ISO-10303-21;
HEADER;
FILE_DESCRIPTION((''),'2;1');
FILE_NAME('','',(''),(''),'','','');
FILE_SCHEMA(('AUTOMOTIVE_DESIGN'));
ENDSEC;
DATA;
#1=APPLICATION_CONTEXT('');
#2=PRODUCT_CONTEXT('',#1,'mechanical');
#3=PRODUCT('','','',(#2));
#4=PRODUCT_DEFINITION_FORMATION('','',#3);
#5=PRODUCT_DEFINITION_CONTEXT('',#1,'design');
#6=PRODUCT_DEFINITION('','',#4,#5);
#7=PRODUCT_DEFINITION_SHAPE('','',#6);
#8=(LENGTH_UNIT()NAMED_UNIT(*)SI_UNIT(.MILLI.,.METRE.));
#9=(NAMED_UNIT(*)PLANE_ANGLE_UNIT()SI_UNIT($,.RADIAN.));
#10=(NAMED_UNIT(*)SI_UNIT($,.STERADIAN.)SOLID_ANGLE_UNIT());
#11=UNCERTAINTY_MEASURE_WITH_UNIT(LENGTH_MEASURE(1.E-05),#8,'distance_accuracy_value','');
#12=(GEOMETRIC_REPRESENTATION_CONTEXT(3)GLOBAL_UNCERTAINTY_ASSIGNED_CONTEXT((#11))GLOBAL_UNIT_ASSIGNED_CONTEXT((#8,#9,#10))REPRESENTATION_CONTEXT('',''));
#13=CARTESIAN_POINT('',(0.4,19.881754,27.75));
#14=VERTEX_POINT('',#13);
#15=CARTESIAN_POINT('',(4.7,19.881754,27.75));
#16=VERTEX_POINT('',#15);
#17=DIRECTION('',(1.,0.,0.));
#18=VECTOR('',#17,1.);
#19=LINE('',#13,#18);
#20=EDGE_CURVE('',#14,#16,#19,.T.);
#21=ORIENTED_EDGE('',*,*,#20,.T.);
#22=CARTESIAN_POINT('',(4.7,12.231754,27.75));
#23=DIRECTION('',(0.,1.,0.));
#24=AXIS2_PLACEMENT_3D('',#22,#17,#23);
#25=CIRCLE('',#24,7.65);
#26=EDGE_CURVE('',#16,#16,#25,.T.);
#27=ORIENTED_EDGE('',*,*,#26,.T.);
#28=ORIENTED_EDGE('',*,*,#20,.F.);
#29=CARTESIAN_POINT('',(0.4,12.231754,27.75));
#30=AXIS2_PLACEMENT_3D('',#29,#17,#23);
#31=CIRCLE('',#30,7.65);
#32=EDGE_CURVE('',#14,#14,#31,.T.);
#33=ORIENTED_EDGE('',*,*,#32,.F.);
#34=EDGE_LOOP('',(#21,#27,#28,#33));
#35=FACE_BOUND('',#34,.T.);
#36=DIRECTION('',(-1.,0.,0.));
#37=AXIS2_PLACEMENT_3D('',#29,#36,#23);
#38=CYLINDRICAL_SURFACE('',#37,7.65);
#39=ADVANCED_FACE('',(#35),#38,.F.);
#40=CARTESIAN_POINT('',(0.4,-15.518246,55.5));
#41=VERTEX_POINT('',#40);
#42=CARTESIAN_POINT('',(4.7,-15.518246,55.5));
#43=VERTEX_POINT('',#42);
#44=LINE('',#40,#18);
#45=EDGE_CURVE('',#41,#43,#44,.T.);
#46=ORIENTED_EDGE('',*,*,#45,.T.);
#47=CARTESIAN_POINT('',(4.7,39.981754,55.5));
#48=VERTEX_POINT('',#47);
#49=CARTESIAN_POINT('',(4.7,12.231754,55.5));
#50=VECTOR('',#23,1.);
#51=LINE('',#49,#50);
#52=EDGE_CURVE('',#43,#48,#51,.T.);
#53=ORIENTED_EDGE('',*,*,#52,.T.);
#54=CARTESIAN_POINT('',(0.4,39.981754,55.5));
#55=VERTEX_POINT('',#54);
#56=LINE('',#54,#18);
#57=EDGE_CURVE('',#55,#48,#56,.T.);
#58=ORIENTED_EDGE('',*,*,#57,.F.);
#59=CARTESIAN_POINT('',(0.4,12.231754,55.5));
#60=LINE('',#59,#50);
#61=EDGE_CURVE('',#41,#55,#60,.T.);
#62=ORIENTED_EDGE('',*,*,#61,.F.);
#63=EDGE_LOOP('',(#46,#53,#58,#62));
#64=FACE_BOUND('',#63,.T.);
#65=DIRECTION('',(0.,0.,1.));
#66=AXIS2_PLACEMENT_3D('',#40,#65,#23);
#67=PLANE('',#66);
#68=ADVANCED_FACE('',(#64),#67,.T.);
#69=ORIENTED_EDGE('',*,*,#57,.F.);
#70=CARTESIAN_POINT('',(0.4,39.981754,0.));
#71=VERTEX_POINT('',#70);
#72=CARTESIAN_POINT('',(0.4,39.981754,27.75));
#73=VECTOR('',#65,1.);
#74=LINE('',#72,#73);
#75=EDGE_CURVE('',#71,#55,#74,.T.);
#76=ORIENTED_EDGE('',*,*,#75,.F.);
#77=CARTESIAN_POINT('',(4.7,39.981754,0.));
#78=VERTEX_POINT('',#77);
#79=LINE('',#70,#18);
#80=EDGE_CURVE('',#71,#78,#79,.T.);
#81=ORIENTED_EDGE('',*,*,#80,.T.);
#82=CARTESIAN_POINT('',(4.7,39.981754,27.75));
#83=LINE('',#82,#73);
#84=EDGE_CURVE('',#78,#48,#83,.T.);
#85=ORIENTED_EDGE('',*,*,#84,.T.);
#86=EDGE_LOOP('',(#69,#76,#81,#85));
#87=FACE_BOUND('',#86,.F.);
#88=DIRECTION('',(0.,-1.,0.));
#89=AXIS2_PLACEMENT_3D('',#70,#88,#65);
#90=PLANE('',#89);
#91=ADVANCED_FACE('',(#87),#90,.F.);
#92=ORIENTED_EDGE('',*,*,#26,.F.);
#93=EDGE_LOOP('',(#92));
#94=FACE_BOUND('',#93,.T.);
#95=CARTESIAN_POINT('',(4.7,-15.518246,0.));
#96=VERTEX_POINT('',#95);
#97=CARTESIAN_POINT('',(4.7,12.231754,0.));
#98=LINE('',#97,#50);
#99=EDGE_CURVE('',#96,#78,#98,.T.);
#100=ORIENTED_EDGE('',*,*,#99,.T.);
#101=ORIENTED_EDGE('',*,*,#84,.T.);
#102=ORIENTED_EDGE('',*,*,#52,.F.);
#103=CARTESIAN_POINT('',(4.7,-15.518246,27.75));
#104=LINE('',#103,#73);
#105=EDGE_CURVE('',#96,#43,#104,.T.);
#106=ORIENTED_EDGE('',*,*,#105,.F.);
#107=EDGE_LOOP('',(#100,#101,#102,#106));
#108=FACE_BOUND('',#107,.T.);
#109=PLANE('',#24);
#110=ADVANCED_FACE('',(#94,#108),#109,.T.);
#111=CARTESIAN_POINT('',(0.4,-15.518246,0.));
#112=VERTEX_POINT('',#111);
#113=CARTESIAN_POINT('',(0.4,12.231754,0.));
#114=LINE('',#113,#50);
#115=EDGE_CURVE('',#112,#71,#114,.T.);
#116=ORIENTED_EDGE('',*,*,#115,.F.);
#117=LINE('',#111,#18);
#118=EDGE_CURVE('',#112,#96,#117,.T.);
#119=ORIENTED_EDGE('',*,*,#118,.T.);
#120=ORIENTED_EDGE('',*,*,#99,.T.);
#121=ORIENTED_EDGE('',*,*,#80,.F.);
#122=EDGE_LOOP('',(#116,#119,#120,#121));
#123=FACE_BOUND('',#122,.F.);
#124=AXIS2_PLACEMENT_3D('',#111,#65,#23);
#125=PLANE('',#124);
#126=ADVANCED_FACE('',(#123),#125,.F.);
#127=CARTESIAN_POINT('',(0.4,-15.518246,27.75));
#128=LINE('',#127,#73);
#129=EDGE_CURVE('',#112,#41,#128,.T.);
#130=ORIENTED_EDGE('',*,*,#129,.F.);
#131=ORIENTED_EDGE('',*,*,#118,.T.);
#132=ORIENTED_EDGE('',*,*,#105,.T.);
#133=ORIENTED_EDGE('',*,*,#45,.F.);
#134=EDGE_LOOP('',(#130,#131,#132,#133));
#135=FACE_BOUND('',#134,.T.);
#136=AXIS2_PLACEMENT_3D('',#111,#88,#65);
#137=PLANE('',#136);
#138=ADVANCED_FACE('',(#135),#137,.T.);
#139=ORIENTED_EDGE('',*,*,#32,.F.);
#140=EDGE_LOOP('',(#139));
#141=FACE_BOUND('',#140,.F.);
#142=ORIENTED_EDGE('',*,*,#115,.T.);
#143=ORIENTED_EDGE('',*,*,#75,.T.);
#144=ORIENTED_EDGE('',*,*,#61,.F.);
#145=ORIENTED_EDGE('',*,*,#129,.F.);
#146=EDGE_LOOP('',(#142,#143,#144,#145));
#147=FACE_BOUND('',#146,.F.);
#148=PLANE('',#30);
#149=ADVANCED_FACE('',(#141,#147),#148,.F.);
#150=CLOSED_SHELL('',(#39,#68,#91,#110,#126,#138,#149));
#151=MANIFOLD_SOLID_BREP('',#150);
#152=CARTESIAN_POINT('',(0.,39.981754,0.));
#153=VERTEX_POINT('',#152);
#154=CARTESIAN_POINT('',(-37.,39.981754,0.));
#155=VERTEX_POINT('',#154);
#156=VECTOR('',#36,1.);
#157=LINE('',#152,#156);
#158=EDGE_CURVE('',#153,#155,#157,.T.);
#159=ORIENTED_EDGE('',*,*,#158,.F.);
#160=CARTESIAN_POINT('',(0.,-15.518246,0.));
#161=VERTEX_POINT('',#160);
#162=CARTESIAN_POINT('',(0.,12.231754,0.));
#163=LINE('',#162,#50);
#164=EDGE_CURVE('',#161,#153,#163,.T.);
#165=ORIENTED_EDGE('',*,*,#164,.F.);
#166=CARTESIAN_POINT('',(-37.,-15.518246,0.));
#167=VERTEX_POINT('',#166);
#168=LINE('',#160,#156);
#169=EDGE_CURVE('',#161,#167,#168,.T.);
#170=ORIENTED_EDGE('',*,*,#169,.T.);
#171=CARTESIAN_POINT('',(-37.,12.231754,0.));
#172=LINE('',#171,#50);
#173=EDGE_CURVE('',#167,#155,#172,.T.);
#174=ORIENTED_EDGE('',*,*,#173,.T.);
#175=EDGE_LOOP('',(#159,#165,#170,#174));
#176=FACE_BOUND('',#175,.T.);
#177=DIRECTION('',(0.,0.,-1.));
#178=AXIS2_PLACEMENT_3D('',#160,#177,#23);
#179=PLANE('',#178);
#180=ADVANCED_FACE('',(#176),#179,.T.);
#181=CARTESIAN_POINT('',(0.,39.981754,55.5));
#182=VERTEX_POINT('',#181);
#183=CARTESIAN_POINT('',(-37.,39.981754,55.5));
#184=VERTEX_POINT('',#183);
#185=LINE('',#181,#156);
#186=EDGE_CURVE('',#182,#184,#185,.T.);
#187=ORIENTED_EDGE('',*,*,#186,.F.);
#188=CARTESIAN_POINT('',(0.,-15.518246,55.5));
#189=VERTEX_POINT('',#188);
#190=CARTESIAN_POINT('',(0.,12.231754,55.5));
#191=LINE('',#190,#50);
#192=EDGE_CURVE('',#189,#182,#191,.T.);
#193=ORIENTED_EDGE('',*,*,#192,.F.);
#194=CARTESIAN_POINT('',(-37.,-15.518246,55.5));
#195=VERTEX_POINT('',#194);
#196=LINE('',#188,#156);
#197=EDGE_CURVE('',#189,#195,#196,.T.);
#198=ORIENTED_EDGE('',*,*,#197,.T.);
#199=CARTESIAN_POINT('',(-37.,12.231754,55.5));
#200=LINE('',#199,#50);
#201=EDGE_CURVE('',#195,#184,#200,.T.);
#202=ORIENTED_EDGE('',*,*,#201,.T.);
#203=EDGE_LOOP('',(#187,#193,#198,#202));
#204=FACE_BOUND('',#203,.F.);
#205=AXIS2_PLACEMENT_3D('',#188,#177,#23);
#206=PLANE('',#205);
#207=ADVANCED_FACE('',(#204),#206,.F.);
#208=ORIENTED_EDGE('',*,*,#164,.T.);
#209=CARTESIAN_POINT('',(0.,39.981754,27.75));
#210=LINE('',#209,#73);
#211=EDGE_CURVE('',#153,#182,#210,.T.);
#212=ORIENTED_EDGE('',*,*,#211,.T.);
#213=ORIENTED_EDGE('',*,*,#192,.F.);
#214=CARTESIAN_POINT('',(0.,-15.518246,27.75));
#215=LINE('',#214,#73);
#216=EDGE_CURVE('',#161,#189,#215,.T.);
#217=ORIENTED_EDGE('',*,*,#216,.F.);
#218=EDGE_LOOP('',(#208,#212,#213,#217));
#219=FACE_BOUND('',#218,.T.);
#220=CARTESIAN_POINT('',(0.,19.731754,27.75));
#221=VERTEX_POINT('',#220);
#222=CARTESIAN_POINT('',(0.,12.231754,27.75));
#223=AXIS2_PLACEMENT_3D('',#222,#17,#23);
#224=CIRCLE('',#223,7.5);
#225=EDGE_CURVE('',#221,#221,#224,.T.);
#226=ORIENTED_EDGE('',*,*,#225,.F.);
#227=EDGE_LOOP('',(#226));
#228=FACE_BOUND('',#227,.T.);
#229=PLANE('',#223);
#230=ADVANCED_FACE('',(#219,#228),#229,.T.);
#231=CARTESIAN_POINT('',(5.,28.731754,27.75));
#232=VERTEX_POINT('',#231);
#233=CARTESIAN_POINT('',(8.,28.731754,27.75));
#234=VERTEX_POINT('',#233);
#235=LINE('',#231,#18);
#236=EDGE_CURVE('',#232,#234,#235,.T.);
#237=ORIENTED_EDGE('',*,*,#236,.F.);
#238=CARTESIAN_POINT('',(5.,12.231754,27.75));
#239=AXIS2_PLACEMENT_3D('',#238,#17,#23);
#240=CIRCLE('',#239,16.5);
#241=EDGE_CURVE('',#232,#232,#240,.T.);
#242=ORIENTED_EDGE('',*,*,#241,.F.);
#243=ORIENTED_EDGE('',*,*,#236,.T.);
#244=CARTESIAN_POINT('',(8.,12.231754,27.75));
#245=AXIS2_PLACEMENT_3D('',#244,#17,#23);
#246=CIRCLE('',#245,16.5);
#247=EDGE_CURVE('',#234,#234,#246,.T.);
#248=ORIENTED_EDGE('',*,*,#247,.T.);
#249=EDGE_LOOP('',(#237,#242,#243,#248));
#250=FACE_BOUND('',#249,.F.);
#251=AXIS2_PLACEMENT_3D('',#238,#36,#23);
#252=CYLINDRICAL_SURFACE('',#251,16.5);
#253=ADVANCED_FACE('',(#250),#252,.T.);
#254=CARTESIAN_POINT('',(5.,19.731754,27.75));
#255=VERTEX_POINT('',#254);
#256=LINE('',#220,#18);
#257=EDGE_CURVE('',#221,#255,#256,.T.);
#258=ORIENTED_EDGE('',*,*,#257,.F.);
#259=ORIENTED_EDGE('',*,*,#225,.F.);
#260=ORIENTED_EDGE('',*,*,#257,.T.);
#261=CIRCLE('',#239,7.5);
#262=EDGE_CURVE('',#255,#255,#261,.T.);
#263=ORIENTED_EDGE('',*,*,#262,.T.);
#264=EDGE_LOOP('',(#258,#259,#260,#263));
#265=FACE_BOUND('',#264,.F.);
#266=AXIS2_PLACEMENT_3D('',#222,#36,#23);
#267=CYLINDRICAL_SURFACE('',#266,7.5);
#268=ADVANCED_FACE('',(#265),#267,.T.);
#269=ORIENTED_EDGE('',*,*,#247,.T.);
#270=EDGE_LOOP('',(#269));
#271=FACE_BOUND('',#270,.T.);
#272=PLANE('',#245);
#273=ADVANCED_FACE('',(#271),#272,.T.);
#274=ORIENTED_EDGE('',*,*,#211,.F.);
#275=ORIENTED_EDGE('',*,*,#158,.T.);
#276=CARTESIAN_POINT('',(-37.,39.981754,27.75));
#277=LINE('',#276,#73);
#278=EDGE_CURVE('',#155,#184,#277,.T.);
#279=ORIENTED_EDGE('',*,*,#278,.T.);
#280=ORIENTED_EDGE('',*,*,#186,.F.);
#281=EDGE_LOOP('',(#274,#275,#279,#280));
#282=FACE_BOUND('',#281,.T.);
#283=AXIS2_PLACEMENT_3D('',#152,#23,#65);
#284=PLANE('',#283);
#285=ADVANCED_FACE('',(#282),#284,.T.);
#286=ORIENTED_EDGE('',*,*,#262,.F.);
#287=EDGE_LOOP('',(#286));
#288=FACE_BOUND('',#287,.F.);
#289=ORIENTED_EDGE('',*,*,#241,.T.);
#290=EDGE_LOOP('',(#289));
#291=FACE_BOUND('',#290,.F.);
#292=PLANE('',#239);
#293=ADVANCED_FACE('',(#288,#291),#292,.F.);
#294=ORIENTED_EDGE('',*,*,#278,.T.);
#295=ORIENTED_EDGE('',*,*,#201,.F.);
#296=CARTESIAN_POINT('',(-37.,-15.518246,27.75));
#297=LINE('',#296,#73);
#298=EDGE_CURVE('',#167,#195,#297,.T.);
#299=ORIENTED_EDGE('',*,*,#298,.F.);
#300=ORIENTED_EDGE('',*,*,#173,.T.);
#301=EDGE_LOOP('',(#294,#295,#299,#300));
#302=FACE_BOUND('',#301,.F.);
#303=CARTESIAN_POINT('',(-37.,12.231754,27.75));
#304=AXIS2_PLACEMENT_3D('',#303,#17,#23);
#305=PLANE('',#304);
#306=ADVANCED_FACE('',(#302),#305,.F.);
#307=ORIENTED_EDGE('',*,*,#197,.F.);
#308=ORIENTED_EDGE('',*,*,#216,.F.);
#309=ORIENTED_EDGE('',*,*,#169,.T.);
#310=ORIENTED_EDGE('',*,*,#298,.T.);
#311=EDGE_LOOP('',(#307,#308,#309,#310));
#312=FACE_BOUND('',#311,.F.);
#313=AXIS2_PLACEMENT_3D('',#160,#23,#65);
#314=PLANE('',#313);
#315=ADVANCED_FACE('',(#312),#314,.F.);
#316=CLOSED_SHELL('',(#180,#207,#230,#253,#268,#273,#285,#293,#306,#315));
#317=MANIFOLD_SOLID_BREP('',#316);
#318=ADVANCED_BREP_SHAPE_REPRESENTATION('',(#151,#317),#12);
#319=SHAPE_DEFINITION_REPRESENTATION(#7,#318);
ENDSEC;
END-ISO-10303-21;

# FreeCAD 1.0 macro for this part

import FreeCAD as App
import Part
import Sketcher

V = App.Vector
Q = App.Units.Quantity


def add_polygon(sketch, points):
    """Adds a closed chain of lines whose ends are joined by coincident constraints."""
    first, n = sketch.GeometryCount, len(points)
    for a, b in zip(points, points[1:] + points[:1]):
        sketch.addGeometry(Part.LineSegment(App.Vector(*a, 0), App.Vector(*b, 0)), False)
    for i in range(n):
        sketch.addConstraint(Sketcher.Constraint("Coincident", first + i, 2, first + (i + 1) % n, 1))

doc = App.newDocument("Part")
body = doc.addObject("PartDesign::Body", "Body")

# Sketch on YZ plane
sketch1 = body.newObject("Sketcher::SketchObject", "Sketch")
sketch1.AttachmentSupport = (doc.getObject("YZ_Plane"), [""])
sketch1.MapMode = "FlatFace"
add_polygon(sketch1, [(-15.518246, 55.5), (-15.518246, 0), (39.981754, 0), (39.981754, 55.5)])  # lines 0-3
sketch1.addConstraint([
    Sketcher.Constraint("Vertical", 0),
    Sketcher.Constraint("Horizontal", 1),
    Sketcher.Constraint("Vertical", 2),
    Sketcher.Constraint("Horizontal", 3),
    Sketcher.Constraint("PointOnObject", 0, 2, -1),
    Sketcher.Constraint("Equal", 3, 0),
    Sketcher.Constraint("DistanceX", 1, 1, 1, 2, Q("55.5 mm")),
    Sketcher.Constraint("DistanceX", 0, 2, -1, 1, Q("15.518246 mm")),
])
pad1 = body.newObject("PartDesign::Pad", "Pad")
pad1.Profile = sketch1
pad1.Length = 37
pad1.Reversed = True

# Sketch on YZ plane
sketch2 = body.newObject("Sketcher::SketchObject", "Sketch001")
sketch2.AttachmentSupport = (doc.getObject("YZ_Plane"), [""])
sketch2.MapMode = "FlatFace"
sketch2.addGeometry(Part.Circle(V(12.231754, 27.75, 0), V(0, 0, 1), 7.5), False)
sketch2.addConstraint([
    Sketcher.Constraint("Diameter", 0, Q("15 mm")),
    Sketcher.Constraint("DistanceY", -1, 1, 0, 3, Q("27.75 mm")),
    Sketcher.Constraint("DistanceX", -1, 1, 0, 3, Q("12.231754 mm")),
])
pad2 = body.newObject("PartDesign::Pad", "Pad001")
pad2.Profile = sketch2
pad2.Length = 5

# Sketch on YZ plane
sketch3 = body.newObject("Sketcher::SketchObject", "Sketch002")
sketch3.AttachmentSupport = (doc.getObject("YZ_Plane"), [""])
sketch3.MapMode = "FlatFace"
sketch3.AttachmentOffset = App.Placement(V(0, 0, 5), App.Rotation())
sketch3.addGeometry(Part.Circle(V(12.231754, 27.75, 0), V(0, 0, 1), 16.5), False)
sketch3.addConstraint([
    Sketcher.Constraint("Diameter", 0, Q("33 mm")),
    Sketcher.Constraint("DistanceY", -1, 1, 0, 3, Q("27.75 mm")),
    Sketcher.Constraint("DistanceX", -1, 1, 0, 3, Q("12.231754 mm")),
])
pad3 = body.newObject("PartDesign::Pad", "Pad002")
pad3.Profile = sketch3
pad3.Length = 3
body2 = doc.addObject("PartDesign::Body", "Body001")

# Sketch on YZ plane
sketch4 = body2.newObject("Sketcher::SketchObject", "Sketch003")
sketch4.AttachmentSupport = (doc.getObject("YZ_Plane001"), [""])
sketch4.MapMode = "FlatFace"
sketch4.AttachmentOffset = App.Placement(V(0, 0, 0.4), App.Rotation())
add_polygon(sketch4, [(-15.518246, 55.5), (-15.518246, 0), (39.981754, 0), (39.981754, 55.5)])  # lines 0-3
sketch4.addGeometry(Part.Circle(V(12.231754, 27.75, 0), V(0, 0, 1), 7.65), False)  # 4
sketch4.addConstraint([
    Sketcher.Constraint("Vertical", 0),
    Sketcher.Constraint("Horizontal", 1),
    Sketcher.Constraint("Vertical", 2),
    Sketcher.Constraint("Horizontal", 3),
    Sketcher.Constraint("PointOnObject", 0, 2, -1),
    Sketcher.Constraint("Equal", 3, 0),
    Sketcher.Constraint("Diameter", 4, Q("15.3 mm")),
    Sketcher.Constraint("DistanceX", 1, 1, 1, 2, Q("55.5 mm")),
    Sketcher.Constraint("DistanceY", -1, 1, 4, 3, Q("27.75 mm")),
    Sketcher.Constraint("DistanceX", 0, 2, 4, 3, Q("27.75 mm")),
    Sketcher.Constraint("DistanceX", -1, 1, 4, 3, Q("12.231754 mm")),
])
pad4 = body2.newObject("PartDesign::Pad", "Pad003")
pad4.Profile = sketch4
pad4.Length = 4.3

doc.recompute()
